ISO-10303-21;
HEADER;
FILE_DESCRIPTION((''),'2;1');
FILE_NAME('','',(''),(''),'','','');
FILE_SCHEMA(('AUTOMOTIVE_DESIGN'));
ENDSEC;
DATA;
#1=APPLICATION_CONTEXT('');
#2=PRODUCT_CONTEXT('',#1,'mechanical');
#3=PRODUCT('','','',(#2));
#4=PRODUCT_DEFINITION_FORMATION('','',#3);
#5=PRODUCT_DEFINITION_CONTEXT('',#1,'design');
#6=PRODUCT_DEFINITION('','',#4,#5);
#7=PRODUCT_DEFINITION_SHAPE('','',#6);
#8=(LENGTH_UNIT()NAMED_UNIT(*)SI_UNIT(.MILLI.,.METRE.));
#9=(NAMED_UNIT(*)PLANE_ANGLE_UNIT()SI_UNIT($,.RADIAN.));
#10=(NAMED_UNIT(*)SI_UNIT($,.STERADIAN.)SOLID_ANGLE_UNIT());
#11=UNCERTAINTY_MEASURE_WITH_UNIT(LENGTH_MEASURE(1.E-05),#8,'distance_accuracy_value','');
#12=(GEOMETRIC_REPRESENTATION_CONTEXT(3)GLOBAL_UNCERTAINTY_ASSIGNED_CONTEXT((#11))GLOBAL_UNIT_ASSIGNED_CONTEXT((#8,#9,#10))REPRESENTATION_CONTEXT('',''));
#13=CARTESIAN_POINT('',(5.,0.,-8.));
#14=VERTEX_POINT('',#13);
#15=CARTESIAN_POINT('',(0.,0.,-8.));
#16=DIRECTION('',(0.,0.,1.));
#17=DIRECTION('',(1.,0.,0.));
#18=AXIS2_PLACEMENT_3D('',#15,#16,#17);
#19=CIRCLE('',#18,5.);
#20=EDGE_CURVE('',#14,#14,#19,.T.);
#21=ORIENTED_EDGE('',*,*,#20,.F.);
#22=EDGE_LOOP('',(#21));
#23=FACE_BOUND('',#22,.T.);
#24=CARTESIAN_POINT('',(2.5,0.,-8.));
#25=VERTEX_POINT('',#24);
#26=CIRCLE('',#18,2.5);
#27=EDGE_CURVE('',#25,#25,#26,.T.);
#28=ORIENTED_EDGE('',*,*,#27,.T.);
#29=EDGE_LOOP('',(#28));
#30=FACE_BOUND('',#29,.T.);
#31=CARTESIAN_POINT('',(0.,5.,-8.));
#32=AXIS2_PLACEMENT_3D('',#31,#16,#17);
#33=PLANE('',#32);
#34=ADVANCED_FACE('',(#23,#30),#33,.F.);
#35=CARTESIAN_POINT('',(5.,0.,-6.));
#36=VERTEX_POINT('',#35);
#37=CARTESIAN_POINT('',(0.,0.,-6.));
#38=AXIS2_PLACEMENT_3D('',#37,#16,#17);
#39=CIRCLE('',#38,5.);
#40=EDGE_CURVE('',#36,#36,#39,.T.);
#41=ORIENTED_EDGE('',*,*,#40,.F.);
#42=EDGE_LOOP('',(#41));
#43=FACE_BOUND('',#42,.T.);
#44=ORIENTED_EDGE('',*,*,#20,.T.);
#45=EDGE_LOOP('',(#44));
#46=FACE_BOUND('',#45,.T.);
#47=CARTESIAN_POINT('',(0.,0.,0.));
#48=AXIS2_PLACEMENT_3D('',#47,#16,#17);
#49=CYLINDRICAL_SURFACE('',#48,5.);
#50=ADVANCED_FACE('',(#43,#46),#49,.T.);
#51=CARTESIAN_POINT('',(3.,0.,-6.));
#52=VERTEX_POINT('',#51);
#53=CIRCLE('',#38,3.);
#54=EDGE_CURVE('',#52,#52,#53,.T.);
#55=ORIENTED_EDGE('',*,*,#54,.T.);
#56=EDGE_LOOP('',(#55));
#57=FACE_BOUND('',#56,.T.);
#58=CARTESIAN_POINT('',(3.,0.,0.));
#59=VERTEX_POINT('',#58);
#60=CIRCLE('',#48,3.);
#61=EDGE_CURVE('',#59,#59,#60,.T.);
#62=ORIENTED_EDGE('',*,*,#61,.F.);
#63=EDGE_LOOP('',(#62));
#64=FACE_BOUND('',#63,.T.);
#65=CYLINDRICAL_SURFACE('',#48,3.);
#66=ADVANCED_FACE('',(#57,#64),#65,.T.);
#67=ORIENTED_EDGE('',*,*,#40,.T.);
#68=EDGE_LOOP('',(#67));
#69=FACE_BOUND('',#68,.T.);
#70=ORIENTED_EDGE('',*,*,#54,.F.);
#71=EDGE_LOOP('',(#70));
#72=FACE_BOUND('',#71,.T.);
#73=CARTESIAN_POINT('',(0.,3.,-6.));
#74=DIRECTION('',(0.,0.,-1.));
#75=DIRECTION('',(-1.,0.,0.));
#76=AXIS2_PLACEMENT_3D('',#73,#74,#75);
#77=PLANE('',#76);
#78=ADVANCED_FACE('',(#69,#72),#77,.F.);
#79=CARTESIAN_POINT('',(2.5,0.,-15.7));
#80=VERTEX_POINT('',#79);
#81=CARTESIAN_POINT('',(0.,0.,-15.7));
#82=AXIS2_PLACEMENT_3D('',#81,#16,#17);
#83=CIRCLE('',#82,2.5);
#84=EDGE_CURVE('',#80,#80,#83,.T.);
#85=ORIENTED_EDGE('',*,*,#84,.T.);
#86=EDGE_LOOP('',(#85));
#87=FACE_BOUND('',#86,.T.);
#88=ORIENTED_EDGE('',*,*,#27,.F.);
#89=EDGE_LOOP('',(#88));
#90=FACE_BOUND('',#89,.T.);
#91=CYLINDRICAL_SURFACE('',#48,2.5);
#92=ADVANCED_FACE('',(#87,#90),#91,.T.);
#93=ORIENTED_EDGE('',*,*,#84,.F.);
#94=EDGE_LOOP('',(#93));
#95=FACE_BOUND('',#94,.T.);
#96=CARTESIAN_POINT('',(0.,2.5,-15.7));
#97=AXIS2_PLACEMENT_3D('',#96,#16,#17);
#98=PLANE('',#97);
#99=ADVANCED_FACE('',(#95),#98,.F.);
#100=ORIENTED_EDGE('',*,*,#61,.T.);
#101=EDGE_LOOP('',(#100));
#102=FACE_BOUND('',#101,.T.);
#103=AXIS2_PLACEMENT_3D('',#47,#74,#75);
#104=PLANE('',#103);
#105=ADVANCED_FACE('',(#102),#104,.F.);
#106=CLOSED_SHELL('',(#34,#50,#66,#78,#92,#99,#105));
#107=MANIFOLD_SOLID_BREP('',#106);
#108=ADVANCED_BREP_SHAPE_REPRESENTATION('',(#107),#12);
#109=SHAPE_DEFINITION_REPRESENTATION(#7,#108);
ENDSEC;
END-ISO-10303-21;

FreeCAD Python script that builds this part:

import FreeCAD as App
import Part
import Sketcher
from FreeCAD import Vector


def add_polygon(sketch, points):
    """Adds a closed chain of lines whose ends are joined by coincident constraints."""
    first, n = sketch.GeometryCount, len(points)
    for a, b in zip(points, points[1:] + points[:1]):
        sketch.addGeometry(Part.LineSegment(App.Vector(*a, 0), App.Vector(*b, 0)), False)
    for i in range(n):
        sketch.addConstraint(Sketcher.Constraint("Coincident", first + i, 2, first + (i + 1) % n, 1))

doc = App.newDocument("Part")
body = doc.addObject("PartDesign::Body", "Body")

# Sketch on YZ plane
sketch1 = body.newObject("Sketcher::SketchObject", "Sketch")
sketch1.AttachmentSupport = (doc.getObject("YZ_Plane"), [""])
sketch1.MapMode = "FlatFace"
add_polygon(sketch1, [(3, 0), (0, 0), (0, -15.7), (2.5, -15.7), (2.5, -8), (5, -8), (5, -6), (3, -6)])  # lines 0-7
sketch1.addConstraint([
    Sketcher.Constraint("Horizontal", 0),
    Sketcher.Constraint("Vertical", 1),
    Sketcher.Constraint("Horizontal", 2),
    Sketcher.Constraint("Vertical", 3),
    Sketcher.Constraint("Horizontal", 4),
    Sketcher.Constraint("Vertical", 5),
    Sketcher.Constraint("Horizontal", 6),
    Sketcher.Constraint("Vertical", 7),
    Sketcher.Constraint("Coincident", 0, 2, -1, 1),
    Sketcher.Constraint("Equal", 2, 4),
    Sketcher.Constraint("Equal", 6, 5),
    Sketcher.Constraint("DistanceX", 0, 2, 0, 1, 3.0),
    Sketcher.Constraint("DistanceX", 6, 2, 6, 1, 2.0),
    Sketcher.Constraint("DistanceY", 7, 1, 7, 2, 6.0),
    Sketcher.Constraint("DistanceY", 1, 2, 1, 1, 15.7),
])
revolution = body.newObject("PartDesign::Revolution", "Revolution")
revolution.Profile = sketch1
revolution.ReferenceAxis = (sketch1, ["V_Axis"])
revolution.Angle = 360

doc.recompute()
